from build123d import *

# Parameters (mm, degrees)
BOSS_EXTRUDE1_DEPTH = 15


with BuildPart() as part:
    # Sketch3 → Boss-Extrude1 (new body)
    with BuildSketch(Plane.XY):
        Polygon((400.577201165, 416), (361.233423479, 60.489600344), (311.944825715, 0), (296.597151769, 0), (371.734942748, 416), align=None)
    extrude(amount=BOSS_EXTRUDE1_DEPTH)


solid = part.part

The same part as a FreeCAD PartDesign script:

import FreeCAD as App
import Part
import Sketcher

doc = App.newDocument("Part")
body = doc.addObject("PartDesign::Body", "Body")

# Sketch on XY plane
sketch1 = body.newObject("Sketcher::SketchObject", "Sketch")
sketch1.AttachmentSupport = (doc.getObject("XY_Plane"), [""])
sketch1.MapMode = "FlatFace"
sketch1.addGeometry([
    Part.LineSegment(App.Vector(361.233423, 60.4896, 0), App.Vector(400.577201, 416, 0)),  # 0
    Part.LineSegment(App.Vector(400.577201, 416, 0), App.Vector(371.734943, 416, 0)),  # 1
    Part.LineSegment(App.Vector(371.734943, 416, 0), App.Vector(296.597152, 0, 0)),  # 2
    Part.LineSegment(App.Vector(296.597152, 0, 0), App.Vector(311.944826, 0, 0)),  # 3
    Part.LineSegment(App.Vector(311.944826, 0, 0), App.Vector(361.233423, 60.4896, 0)),  # 4
], False)
sketch1.addConstraint([
    Sketcher.Constraint("Coincident", 0, 2, 1, 1),
    Sketcher.Constraint("Coincident", 1, 2, 2, 1),
    Sketcher.Constraint("Coincident", 2, 2, 3, 1),
    Sketcher.Constraint("Coincident", 3, 2, 4, 1),
    Sketcher.Constraint("Coincident", 4, 2, 0, 1),
    Sketcher.Constraint("Horizontal", 1),
    Sketcher.Constraint("Horizontal", 3),
    Sketcher.Constraint("PointOnObject", 2, 2, -1),
    Sketcher.Constraint("DistanceY", -1, 1, 0, 2, 416.0),
    Sketcher.Constraint("DistanceX", 1, 2, 1, 1, 28.842258),
    Sketcher.Constraint("DistanceX", -1, 1, 0, 2, 400.577201),
    Sketcher.Constraint("DistanceY", -1, 1, 4, 2, 60.4896),
    Sketcher.Constraint("Distance", 0, 357.680831),
    Sketcher.Constraint("Distance", 4, 78.027928),
    Sketcher.Constraint("DistanceX", 3, 1, 3, 2, 15.347674),
])
pad1 = body.newObject("PartDesign::Pad", "Pad")
pad1.Profile = sketch1
pad1.Length = 15

doc.recompute()
